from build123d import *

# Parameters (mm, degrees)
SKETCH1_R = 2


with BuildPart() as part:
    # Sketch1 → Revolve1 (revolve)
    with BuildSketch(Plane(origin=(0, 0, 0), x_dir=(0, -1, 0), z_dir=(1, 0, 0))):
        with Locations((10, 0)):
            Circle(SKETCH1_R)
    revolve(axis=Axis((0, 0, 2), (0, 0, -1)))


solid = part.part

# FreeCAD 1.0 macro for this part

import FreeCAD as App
import Part
import Sketcher
from FreeCAD import Vector
Q = App.Units.Quantity

doc = App.newDocument("Part")
body = doc.addObject("PartDesign::Body", "Body")

sketch1 = body.newObject("Sketcher::SketchObject", "Sketch")
sketch1.AttachmentSupport = (doc.getObject("YZ_Plane"), [""])
sketch1.MapMode = "FlatFace"
sketch1.addGeometry(Part.Circle(Vector(-10, 0, 0), Vector(0, 0, 1), 2), False)
sketch1.addConstraint(Sketcher.Constraint("PointOnObject", 0, 3, -1))
sketch1.addConstraint(Sketcher.Constraint("Diameter", 0, Q("4 mm")))
sketch1.addConstraint(Sketcher.Constraint("DistanceX", 0, 3, -1, 1, Q("10 mm")))
revolution = body.newObject("PartDesign::Revolution", "Revolution")
revolution.Profile = sketch1
revolution.ReferenceAxis = (sketch1, ["V_Axis"])
revolution.Angle = 360

doc.recompute()
